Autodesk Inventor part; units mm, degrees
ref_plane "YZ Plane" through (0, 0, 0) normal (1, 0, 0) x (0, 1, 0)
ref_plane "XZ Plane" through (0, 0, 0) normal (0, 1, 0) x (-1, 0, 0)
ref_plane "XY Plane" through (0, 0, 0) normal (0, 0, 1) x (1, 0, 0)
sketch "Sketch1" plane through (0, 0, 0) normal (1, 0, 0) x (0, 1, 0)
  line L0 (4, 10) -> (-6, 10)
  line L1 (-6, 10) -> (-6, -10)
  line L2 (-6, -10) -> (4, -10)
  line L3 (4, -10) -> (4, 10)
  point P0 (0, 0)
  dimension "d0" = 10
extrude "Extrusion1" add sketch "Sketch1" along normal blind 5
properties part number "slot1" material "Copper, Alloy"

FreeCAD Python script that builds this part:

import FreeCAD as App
import Part
import Sketcher

V = App.Vector
Q = App.Units.Quantity


def add_polygon(sketch, points):
    """Adds a closed chain of lines whose ends are joined by coincident constraints."""
    first, n = sketch.GeometryCount, len(points)
    for a, b in zip(points, points[1:] + points[:1]):
        sketch.addGeometry(Part.LineSegment(App.Vector(*a, 0), App.Vector(*b, 0)), False)
    for i in range(n):
        sketch.addConstraint(Sketcher.Constraint("Coincident", first + i, 2, first + (i + 1) % n, 1))

doc = App.newDocument("Part")
body = doc.addObject("PartDesign::Body", "Body")

# Sketch on YZ plane
sketch1 = body.newObject("Sketcher::SketchObject", "Sketch")
sketch1.AttachmentSupport = (doc.getObject("YZ_Plane"), [""])
sketch1.MapMode = "FlatFace"
add_polygon(sketch1, [(4, -10), (4, 10), (-6, 10), (-6, -10)])  # lines 0-3
sketch1.addConstraint([
    Sketcher.Constraint("Vertical", 0),
    Sketcher.Constraint("Horizontal", 1),
    Sketcher.Constraint("Vertical", 2),
    Sketcher.Constraint("Horizontal", 3),
    Sketcher.Constraint("DistanceX", 1, 2, 1, 1, Q("10 mm")),
    Sketcher.Constraint("DistanceY", -1, 1, 0, 2, Q("10 mm")),
    Sketcher.Constraint("DistanceY", 2, 2, -1, 1, Q("10 mm")),
    Sketcher.Constraint("DistanceX", -1, 1, 0, 2, Q("4 mm")),
])
pad1 = body.newObject("PartDesign::Pad", "Pad")
pad1.Profile = sketch1
pad1.Length = 5

doc.recompute()
